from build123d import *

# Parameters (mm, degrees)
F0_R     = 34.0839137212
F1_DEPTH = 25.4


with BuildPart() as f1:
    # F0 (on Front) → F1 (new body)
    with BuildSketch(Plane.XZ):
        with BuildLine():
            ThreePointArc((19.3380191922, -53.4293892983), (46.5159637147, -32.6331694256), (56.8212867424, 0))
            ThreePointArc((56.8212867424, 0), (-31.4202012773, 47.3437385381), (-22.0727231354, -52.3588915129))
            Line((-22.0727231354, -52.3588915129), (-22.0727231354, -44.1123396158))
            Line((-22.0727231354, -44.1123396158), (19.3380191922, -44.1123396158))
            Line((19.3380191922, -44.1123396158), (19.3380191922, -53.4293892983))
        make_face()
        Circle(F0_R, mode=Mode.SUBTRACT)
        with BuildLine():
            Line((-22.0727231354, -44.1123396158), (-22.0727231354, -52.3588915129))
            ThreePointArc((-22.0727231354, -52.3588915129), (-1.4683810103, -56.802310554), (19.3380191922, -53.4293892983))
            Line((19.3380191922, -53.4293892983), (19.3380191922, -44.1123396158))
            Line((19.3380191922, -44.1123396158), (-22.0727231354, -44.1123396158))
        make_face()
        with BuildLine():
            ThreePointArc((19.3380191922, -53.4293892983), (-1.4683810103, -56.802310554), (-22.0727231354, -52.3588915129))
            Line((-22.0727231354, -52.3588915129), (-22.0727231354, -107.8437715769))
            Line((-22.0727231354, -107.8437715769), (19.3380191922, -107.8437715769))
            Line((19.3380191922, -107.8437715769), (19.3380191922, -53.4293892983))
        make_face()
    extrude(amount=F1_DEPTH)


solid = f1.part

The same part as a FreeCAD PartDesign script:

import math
import FreeCAD as App
import Part
import Sketcher
Q = App.Units.Quantity

doc = App.newDocument("Part")
body = doc.addObject("PartDesign::Body", "Body")

sketch1 = body.newObject("Sketcher::SketchObject", "Sketch")
sketch1.AttachmentSupport = (doc.getObject("XZ_Plane"), [""])
sketch1.MapMode = "FlatFace"
sketch1.addGeometry(Part.ArcOfCircle(Part.Circle(App.Vector(0, 0, 0), App.Vector(0, 0, 1), 57), math.radians(-70), math.radians(0)), False)
sketch1.addGeometry(Part.ArcOfCircle(Part.Circle(App.Vector(0, 0, 0), App.Vector(0, 0, 1), 57), math.radians(0), math.radians(247)), False)
sketch1.addGeometry(Part.LineSegment(App.Vector(-22, -52, 0), App.Vector(-22, -108, 0)), False)
sketch1.addGeometry(Part.LineSegment(App.Vector(-22, -108, 0), App.Vector(19, -108, 0)), False)
sketch1.addGeometry(Part.LineSegment(App.Vector(19, -108, 0), App.Vector(19, -53, 0)), False)
sketch1.addGeometry(Part.Circle(App.Vector(0, 0, 0), App.Vector(0, 0, 1), 34), False)
sketch1.addConstraint(Sketcher.Constraint("Tangent", 0, 2, 1, 1))
sketch1.addConstraint(Sketcher.Constraint("Coincident", 1, 2, 2, 1))
sketch1.addConstraint(Sketcher.Constraint("Coincident", 2, 2, 3, 1))
sketch1.addConstraint(Sketcher.Constraint("Coincident", 3, 2, 4, 1))
sketch1.addConstraint(Sketcher.Constraint("Coincident", 4, 2, 0, 1))
sketch1.addConstraint(Sketcher.Constraint("Vertical", 2))
sketch1.addConstraint(Sketcher.Constraint("Horizontal", 3))
sketch1.addConstraint(Sketcher.Constraint("Vertical", 4))
sketch1.addConstraint(Sketcher.Constraint("Coincident", 0, 3, -1, 1))
sketch1.addConstraint(Sketcher.Constraint("Coincident", 5, 3, -1, 1))
sketch1.addConstraint(Sketcher.Constraint("Equal", 0, 1))
sketch1.addConstraint(Sketcher.Constraint("PointOnObject", 0, 2, -1))
sketch1.addConstraint(Sketcher.Constraint("Diameter", 5, 68.167827))
sketch1.addConstraint(Sketcher.Constraint("Radius", 0, 56.821287))
sketch1.addConstraint(Sketcher.Constraint("DistanceY", 2, 2, 2, 1, 55.48488))
sketch1.addConstraint(Sketcher.Constraint("DistanceX", 3, 1, 3, 2, 41.410742))
sketch1.addConstraint(Sketcher.Constraint("DistanceY", 4, 1, 4, 2, 54.414382))
pad1 = body.newObject("PartDesign::Pad", "Pad")
pad1.Profile = sketch1
pad1.Length = Q("1 in")

doc.recompute()
